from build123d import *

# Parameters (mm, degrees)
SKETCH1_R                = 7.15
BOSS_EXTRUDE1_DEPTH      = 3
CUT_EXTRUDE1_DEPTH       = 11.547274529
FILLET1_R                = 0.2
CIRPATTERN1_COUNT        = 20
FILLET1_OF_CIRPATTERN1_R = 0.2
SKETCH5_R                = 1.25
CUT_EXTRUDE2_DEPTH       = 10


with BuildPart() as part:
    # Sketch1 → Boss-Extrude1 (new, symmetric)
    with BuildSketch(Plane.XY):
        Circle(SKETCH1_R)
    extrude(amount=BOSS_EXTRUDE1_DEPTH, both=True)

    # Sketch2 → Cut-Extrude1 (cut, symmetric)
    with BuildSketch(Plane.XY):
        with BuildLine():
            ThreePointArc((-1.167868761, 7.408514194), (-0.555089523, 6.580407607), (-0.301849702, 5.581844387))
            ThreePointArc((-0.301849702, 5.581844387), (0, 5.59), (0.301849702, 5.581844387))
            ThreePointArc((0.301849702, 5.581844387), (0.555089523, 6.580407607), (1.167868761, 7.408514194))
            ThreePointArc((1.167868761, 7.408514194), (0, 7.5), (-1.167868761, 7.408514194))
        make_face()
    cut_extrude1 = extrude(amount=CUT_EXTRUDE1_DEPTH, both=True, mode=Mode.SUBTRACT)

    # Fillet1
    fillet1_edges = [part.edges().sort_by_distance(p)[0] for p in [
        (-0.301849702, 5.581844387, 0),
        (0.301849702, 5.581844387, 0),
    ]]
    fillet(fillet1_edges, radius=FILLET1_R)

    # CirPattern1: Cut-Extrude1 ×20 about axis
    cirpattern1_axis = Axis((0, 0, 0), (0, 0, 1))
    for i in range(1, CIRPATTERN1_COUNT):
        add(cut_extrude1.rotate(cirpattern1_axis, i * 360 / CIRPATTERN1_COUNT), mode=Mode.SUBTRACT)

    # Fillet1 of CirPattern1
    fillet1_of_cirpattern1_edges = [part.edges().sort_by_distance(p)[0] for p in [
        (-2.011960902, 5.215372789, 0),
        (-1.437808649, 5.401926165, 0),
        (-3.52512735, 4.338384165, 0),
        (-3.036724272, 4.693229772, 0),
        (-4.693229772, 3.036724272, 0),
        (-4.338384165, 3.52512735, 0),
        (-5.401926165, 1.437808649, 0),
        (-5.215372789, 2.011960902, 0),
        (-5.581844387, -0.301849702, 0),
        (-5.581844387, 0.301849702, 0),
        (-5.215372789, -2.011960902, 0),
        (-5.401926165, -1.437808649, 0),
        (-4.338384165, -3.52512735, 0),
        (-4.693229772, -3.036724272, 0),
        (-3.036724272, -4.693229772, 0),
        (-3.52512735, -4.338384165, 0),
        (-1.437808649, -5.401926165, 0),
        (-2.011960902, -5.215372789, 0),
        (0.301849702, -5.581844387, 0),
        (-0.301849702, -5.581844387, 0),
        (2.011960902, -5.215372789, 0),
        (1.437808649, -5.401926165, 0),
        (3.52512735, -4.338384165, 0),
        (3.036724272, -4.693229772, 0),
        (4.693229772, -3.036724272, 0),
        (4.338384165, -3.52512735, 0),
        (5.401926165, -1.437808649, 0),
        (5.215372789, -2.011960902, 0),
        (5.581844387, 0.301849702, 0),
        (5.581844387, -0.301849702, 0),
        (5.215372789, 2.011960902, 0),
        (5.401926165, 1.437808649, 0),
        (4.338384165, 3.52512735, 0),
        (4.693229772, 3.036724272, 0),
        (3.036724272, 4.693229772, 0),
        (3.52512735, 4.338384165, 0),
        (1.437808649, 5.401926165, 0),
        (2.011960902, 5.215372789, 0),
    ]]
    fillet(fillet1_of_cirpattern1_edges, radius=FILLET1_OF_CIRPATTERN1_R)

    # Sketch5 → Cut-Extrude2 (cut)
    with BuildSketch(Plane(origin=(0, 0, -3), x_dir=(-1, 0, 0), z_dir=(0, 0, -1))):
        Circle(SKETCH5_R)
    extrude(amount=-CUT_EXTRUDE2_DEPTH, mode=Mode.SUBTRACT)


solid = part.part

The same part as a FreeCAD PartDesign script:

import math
import FreeCAD as App
import Part
import Sketcher
from FreeCAD import Vector
Q = App.Units.Quantity


def edges_at(feature, points):
    """Names of the edges that pass closest to the given points."""
    edges = feature.Shape.Edges
    near = lambda p: min(range(len(edges)), key=lambda i: edges[i].distToShape(Part.Vertex(*p))[0])
    return sorted({f"Edge{near(p) + 1}" for p in points})

doc = App.newDocument("Part")
body = doc.addObject("PartDesign::Body", "Body")

# Sketch on XY plane
sketch1 = body.newObject("Sketcher::SketchObject", "Sketch")
sketch1.AttachmentSupport = (doc.getObject("XY_Plane"), [""])
sketch1.MapMode = "FlatFace"
sketch1.addGeometry(Part.Circle(Vector(0, 0, 0), Vector(0, 0, 1), 7.15), False)
sketch1.addConstraint(Sketcher.Constraint("Coincident", 0, 3, -1, 1))
sketch1.addConstraint(Sketcher.Constraint("Diameter", 0, Q("14.3 mm")))
pad1 = body.newObject("PartDesign::Pad", "Pad")
pad1.Profile = sketch1
pad1.Length = 6
pad1.Midplane = True

# Sketch on XY plane
sketch2 = body.newObject("Sketcher::SketchObject", "Sketch001")
sketch2.AttachmentSupport = (doc.getObject("XY_Plane"), [""])
sketch2.MapMode = "FlatFace"
sketch2.addGeometry(Part.ArcOfCircle(Part.Circle(Vector(-2.965111, 5.437823, 0), Vector(0, 0, 1), 2.667153), math.radians(3.095372), math.radians(47.635627)), False)
sketch2.addGeometry(Part.ArcOfCircle(Part.Circle(Vector(0, 0, 0), Vector(0, 0, 1), 5.59), math.radians(86.904628), math.radians(93.095372)), False)
sketch2.addGeometry(Part.ArcOfCircle(Part.Circle(Vector(2.965111, 5.437823, 0), Vector(0, 0, 1), 2.667153), math.radians(132.364373), math.radians(176.904628)), False)
sketch2.addGeometry(Part.ArcOfCircle(Part.Circle(Vector(0, 0, 0), Vector(0, 0, 1), 7.5), math.radians(81.041685), math.radians(98.958315)), False)
sketch2.addConstraint(Sketcher.Constraint("Coincident", 0, 1, 1, 2))
sketch2.addConstraint(Sketcher.Constraint("Coincident", 1, 1, 2, 2))
sketch2.addConstraint(Sketcher.Constraint("Coincident", 2, 1, 3, 1))
sketch2.addConstraint(Sketcher.Constraint("Coincident", 3, 2, 0, 2))
sketch2.addConstraint(Sketcher.Constraint("Coincident", 1, 3, -1, 1))
sketch2.addConstraint(Sketcher.Constraint("Coincident", 3, 3, -1, 1))
sketch2.addConstraint(Sketcher.Constraint("Equal", 0, 2))
sketch2.addConstraint(Sketcher.Constraint("Symmetric", 0, 3, 2, 3, -2))
sketch2.addConstraint(Sketcher.Constraint("Radius", 3, Q("7.5 mm")))
sketch2.addConstraint(Sketcher.Constraint("Radius", 1, Q("5.59 mm")))
sketch2.addConstraint(Sketcher.Constraint("Radius", 0, Q("2.667153 mm")))
sketch2.addConstraint(Sketcher.Constraint("DistanceX", 0, 1, 1, 1, Q("0.603699 mm")))
sketch2.addConstraint(Sketcher.Constraint("DistanceX", 0, 3, -1, 1, Q("2.965111 mm")))
pocket1 = body.newObject("PartDesign::Pocket", "Pocket")
pocket1.Profile = sketch2
pocket1.Length = 23.094549
pocket1.Midplane = True
doc.recompute()

fillet = body.newObject("PartDesign::Fillet", "Fillet")
fillet.Base = (pocket1, edges_at(pocket1, [(-0.302, 5.582, 0), (0.302, 5.582, 0)]))
fillet.Radius = 0.2
doc.recompute()

polarpattern = body.newObject("PartDesign::PolarPattern", "PolarPattern")
polarpattern.Originals = [pocket1]
polarpattern.Axis = (doc.getObject("Z_Axis"), [""])
polarpattern.Angle = 360
polarpattern.Occurrences = 20
body.Tip = polarpattern
doc.recompute()

fillet2 = body.newObject("PartDesign::Fillet", "Fillet001")
fillet2.Base = (polarpattern, edges_at(polarpattern, [
    (-2.012, 5.215, 0),
    (-1.438, 5.402, 0),
    (-3.525, 4.338, 0),
    (-3.037, 4.693, 0),
    (-4.693, 3.037, 0),
    (-4.338, 3.525, 0),
    (-5.402, 1.438, 0),
    (-5.215, 2.012, 0),
    (-5.582, -0.302, 0),
    (-5.582, 0.302, 0),
    (-5.215, -2.012, 0),
    (-5.402, -1.438, 0),
    (-4.338, -3.525, 0),
    (-4.693, -3.037, 0),
    (-3.037, -4.693, 0),
    (-3.525, -4.338, 0),
    (-1.438, -5.402, 0),
    (-2.012, -5.215, 0),
    (0.302, -5.582, 0),
    (-0.302, -5.582, 0),
    (2.012, -5.215, 0),
    (1.438, -5.402, 0),
    (3.525, -4.338, 0),
    (3.037, -4.693, 0),
    (4.693, -3.037, 0),
    (4.338, -3.525, 0),
    (5.402, -1.438, 0),
    (5.215, -2.012, 0),
    (5.582, 0.302, 0),
    (5.582, -0.302, 0),
    (5.215, 2.012, 0),
    (5.402, 1.438, 0),
    (4.338, 3.525, 0),
    (4.693, 3.037, 0),
    (3.037, 4.693, 0),
    (3.525, 4.338, 0),
    (1.438, 5.402, 0),
    (2.012, 5.215, 0),
]))
fillet2.Radius = 0.2

# Sketch on XY plane
sketch3 = body.newObject("Sketcher::SketchObject", "Sketch002")
sketch3.AttachmentSupport = (doc.getObject("XY_Plane"), [""])
sketch3.MapMode = "FlatFace"
sketch3.AttachmentOffset = App.Placement(Vector(0, 0, -3), App.Rotation())
sketch3.addGeometry(Part.Circle(Vector(0, 0, 0), Vector(0, 0, 1), 1.25), False)
sketch3.addConstraint(Sketcher.Constraint("Coincident", 0, 3, -1, 1))
sketch3.addConstraint(Sketcher.Constraint("Diameter", 0, Q("2.5 mm")))
pocket2 = body.newObject("PartDesign::Pocket", "Pocket001")
pocket2.Profile = sketch3
pocket2.Length = 10
pocket2.Reversed = True

doc.recompute()
